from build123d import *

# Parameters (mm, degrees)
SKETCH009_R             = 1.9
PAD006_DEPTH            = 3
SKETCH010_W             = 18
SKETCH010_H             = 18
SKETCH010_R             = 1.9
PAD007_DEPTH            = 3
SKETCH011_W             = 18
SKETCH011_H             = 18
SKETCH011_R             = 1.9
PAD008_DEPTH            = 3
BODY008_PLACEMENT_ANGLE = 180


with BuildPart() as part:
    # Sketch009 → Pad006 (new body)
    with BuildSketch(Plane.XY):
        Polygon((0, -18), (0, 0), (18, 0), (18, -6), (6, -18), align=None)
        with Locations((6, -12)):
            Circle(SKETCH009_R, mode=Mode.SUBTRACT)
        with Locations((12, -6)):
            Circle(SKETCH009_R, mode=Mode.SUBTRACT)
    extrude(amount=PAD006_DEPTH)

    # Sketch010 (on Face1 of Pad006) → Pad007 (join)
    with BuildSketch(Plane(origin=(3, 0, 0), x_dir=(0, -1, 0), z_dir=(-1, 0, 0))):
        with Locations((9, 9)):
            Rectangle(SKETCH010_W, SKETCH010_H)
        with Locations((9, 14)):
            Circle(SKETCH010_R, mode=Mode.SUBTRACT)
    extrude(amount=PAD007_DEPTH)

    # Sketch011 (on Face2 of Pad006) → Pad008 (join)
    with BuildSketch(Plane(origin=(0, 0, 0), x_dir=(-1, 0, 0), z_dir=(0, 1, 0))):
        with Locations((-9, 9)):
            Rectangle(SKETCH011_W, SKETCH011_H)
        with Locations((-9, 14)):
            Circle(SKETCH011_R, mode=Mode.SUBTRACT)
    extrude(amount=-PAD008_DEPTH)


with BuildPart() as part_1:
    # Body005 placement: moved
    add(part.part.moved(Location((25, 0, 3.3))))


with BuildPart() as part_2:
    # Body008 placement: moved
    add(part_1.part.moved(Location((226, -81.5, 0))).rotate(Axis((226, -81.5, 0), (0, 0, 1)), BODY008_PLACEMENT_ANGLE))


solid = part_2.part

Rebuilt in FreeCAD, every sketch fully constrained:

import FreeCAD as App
import Part
import Sketcher
Q = App.Units.Quantity


def add_polygon(sketch, points):
    """Adds a closed chain of lines whose ends are joined by coincident constraints."""
    first, n = sketch.GeometryCount, len(points)
    for a, b in zip(points, points[1:] + points[:1]):
        sketch.addGeometry(Part.LineSegment(App.Vector(*a, 0), App.Vector(*b, 0)), False)
    for i in range(n):
        sketch.addConstraint(Sketcher.Constraint("Coincident", first + i, 2, first + (i + 1) % n, 1))

doc = App.newDocument("Part")
body = doc.addObject("PartDesign::Body", "Body")

# Sketch on XY plane
sketch1 = body.newObject("Sketcher::SketchObject", "Sketch")
sketch1.AttachmentSupport = (doc.getObject("XY_Plane"), [""])
sketch1.MapMode = "FlatFace"
add_polygon(sketch1, [(0, 0), (0, -18), (6, -18), (18, -6), (18, 0)])  # lines 0-4
sketch1.addGeometry(Part.Circle(App.Vector(6, -12, 0), App.Vector(0, 0, 1), 1.9), False)  # 5
sketch1.addGeometry(Part.Circle(App.Vector(12, -6, 0), App.Vector(0, 0, 1), 1.9), False)  # 6
sketch1.addConstraint(Sketcher.Constraint("Vertical", 0))
sketch1.addConstraint(Sketcher.Constraint("Horizontal", 1))
sketch1.addConstraint(Sketcher.Constraint("Vertical", 3))
sketch1.addConstraint(Sketcher.Constraint("Horizontal", 4))
sketch1.addConstraint(Sketcher.Constraint("Coincident", 4, 2, -1, 1))
sketch1.addConstraint(Sketcher.Constraint("Equal", 5, 6))
sketch1.addConstraint(Sketcher.Constraint("Horizontal", 6, 3, 2, 2))
sketch1.addConstraint(Sketcher.Constraint("Vertical", 5, 3, 1, 2))
sketch1.addConstraint(Sketcher.Constraint("Equal", 4, 0))
sketch1.addConstraint(Sketcher.Constraint("Equal", 1, 3))
sketch1.addConstraint(Sketcher.Constraint("Diameter", 5, Q("3.8 mm")))
sketch1.addConstraint(Sketcher.Constraint("DistanceX", 1, 1, 1, 2, Q("6 mm")))
sketch1.addConstraint(Sketcher.Constraint("DistanceX", 4, 2, 4, 1, Q("18 mm")))
sketch1.addConstraint(Sketcher.Constraint("DistanceY", 5, 3, -1, 1, Q("12 mm")))
sketch1.addConstraint(Sketcher.Constraint("DistanceX", -1, 1, 6, 3, Q("12 mm")))
pad1 = body.newObject("PartDesign::Pad", "Pad")
pad1.Profile = sketch1
pad1.Length = 3

# Sketch on YZ plane
sketch2 = body.newObject("Sketcher::SketchObject", "Sketch001")
sketch2.AttachmentSupport = (doc.getObject("YZ_Plane"), [""])
sketch2.MapMode = "FlatFace"
sketch2.AttachmentOffset = App.Placement(App.Vector(0, 0, 3), App.Rotation())
add_polygon(sketch2, [(0, 18), (0, 0), (-18, 0), (-18, 18)])  # lines 0-3
sketch2.addGeometry(Part.Circle(App.Vector(-9, 14, 0), App.Vector(0, 0, 1), 1.9), False)  # 4
sketch2.addConstraint(Sketcher.Constraint("Vertical", 0))
sketch2.addConstraint(Sketcher.Constraint("Horizontal", 1))
sketch2.addConstraint(Sketcher.Constraint("Vertical", 2))
sketch2.addConstraint(Sketcher.Constraint("Horizontal", 3))
sketch2.addConstraint(Sketcher.Constraint("Coincident", 0, 2, -1, 1))
sketch2.addConstraint(Sketcher.Constraint("Equal", 3, 0))
sketch2.addConstraint(Sketcher.Constraint("Diameter", 4, Q("3.8 mm")))
sketch2.addConstraint(Sketcher.Constraint("DistanceX", 1, 2, 1, 1, Q("18 mm")))
sketch2.addConstraint(Sketcher.Constraint("DistanceX", 4, 3, -1, 1, Q("9 mm")))
sketch2.addConstraint(Sketcher.Constraint("DistanceY", -1, 1, 4, 3, Q("14 mm")))
pad2 = body.newObject("PartDesign::Pad", "Pad001")
pad2.Profile = sketch2
pad2.Length = 3
pad2.Reversed = True

# Sketch on XZ plane
sketch3 = body.newObject("Sketcher::SketchObject", "Sketch002")
sketch3.AttachmentSupport = (doc.getObject("XZ_Plane"), [""])
sketch3.MapMode = "FlatFace"
add_polygon(sketch3, [(18, 18), (18, 0), (0, 0), (0, 18)])  # lines 0-3
sketch3.addGeometry(Part.Circle(App.Vector(9, 14, 0), App.Vector(0, 0, 1), 1.9), False)  # 4
sketch3.addConstraint(Sketcher.Constraint("Vertical", 0))
sketch3.addConstraint(Sketcher.Constraint("Horizontal", 1))
sketch3.addConstraint(Sketcher.Constraint("Vertical", 2))
sketch3.addConstraint(Sketcher.Constraint("Horizontal", 3))
sketch3.addConstraint(Sketcher.Constraint("Coincident", 1, 2, -1, 1))
sketch3.addConstraint(Sketcher.Constraint("Equal", 3, 0))
sketch3.addConstraint(Sketcher.Constraint("Diameter", 4, Q("3.8 mm")))
sketch3.addConstraint(Sketcher.Constraint("DistanceX", 1, 2, 1, 1, Q("18 mm")))
sketch3.addConstraint(Sketcher.Constraint("DistanceX", -1, 1, 4, 3, Q("9 mm")))
sketch3.addConstraint(Sketcher.Constraint("DistanceY", -1, 1, 4, 3, Q("14 mm")))
pad3 = body.newObject("PartDesign::Pad", "Pad002")
pad3.Profile = sketch3
pad3.Length = 3
body2 = doc.addObject("PartDesign::Body", "Body001")
doc.recompute()

body.Placement = App.Placement(App.Vector(25, 0, 3.3), App.Rotation(App.Vector(0, 0, 1), 0))
boolean = body2.newObject("PartDesign::Boolean", "Boolean")
boolean.Type = "Fuse"
boolean.addObjects([body])
body3 = doc.addObject("PartDesign::Body", "Body002")
doc.recompute()

body2.Placement = App.Placement(App.Vector(226, -81.5, 0), App.Rotation(App.Vector(0, 0, 1), 180))
boolean2 = body3.newObject("PartDesign::Boolean", "Boolean001")
boolean2.Type = "Fuse"
boolean2.addObjects([body2])

doc.recompute()
